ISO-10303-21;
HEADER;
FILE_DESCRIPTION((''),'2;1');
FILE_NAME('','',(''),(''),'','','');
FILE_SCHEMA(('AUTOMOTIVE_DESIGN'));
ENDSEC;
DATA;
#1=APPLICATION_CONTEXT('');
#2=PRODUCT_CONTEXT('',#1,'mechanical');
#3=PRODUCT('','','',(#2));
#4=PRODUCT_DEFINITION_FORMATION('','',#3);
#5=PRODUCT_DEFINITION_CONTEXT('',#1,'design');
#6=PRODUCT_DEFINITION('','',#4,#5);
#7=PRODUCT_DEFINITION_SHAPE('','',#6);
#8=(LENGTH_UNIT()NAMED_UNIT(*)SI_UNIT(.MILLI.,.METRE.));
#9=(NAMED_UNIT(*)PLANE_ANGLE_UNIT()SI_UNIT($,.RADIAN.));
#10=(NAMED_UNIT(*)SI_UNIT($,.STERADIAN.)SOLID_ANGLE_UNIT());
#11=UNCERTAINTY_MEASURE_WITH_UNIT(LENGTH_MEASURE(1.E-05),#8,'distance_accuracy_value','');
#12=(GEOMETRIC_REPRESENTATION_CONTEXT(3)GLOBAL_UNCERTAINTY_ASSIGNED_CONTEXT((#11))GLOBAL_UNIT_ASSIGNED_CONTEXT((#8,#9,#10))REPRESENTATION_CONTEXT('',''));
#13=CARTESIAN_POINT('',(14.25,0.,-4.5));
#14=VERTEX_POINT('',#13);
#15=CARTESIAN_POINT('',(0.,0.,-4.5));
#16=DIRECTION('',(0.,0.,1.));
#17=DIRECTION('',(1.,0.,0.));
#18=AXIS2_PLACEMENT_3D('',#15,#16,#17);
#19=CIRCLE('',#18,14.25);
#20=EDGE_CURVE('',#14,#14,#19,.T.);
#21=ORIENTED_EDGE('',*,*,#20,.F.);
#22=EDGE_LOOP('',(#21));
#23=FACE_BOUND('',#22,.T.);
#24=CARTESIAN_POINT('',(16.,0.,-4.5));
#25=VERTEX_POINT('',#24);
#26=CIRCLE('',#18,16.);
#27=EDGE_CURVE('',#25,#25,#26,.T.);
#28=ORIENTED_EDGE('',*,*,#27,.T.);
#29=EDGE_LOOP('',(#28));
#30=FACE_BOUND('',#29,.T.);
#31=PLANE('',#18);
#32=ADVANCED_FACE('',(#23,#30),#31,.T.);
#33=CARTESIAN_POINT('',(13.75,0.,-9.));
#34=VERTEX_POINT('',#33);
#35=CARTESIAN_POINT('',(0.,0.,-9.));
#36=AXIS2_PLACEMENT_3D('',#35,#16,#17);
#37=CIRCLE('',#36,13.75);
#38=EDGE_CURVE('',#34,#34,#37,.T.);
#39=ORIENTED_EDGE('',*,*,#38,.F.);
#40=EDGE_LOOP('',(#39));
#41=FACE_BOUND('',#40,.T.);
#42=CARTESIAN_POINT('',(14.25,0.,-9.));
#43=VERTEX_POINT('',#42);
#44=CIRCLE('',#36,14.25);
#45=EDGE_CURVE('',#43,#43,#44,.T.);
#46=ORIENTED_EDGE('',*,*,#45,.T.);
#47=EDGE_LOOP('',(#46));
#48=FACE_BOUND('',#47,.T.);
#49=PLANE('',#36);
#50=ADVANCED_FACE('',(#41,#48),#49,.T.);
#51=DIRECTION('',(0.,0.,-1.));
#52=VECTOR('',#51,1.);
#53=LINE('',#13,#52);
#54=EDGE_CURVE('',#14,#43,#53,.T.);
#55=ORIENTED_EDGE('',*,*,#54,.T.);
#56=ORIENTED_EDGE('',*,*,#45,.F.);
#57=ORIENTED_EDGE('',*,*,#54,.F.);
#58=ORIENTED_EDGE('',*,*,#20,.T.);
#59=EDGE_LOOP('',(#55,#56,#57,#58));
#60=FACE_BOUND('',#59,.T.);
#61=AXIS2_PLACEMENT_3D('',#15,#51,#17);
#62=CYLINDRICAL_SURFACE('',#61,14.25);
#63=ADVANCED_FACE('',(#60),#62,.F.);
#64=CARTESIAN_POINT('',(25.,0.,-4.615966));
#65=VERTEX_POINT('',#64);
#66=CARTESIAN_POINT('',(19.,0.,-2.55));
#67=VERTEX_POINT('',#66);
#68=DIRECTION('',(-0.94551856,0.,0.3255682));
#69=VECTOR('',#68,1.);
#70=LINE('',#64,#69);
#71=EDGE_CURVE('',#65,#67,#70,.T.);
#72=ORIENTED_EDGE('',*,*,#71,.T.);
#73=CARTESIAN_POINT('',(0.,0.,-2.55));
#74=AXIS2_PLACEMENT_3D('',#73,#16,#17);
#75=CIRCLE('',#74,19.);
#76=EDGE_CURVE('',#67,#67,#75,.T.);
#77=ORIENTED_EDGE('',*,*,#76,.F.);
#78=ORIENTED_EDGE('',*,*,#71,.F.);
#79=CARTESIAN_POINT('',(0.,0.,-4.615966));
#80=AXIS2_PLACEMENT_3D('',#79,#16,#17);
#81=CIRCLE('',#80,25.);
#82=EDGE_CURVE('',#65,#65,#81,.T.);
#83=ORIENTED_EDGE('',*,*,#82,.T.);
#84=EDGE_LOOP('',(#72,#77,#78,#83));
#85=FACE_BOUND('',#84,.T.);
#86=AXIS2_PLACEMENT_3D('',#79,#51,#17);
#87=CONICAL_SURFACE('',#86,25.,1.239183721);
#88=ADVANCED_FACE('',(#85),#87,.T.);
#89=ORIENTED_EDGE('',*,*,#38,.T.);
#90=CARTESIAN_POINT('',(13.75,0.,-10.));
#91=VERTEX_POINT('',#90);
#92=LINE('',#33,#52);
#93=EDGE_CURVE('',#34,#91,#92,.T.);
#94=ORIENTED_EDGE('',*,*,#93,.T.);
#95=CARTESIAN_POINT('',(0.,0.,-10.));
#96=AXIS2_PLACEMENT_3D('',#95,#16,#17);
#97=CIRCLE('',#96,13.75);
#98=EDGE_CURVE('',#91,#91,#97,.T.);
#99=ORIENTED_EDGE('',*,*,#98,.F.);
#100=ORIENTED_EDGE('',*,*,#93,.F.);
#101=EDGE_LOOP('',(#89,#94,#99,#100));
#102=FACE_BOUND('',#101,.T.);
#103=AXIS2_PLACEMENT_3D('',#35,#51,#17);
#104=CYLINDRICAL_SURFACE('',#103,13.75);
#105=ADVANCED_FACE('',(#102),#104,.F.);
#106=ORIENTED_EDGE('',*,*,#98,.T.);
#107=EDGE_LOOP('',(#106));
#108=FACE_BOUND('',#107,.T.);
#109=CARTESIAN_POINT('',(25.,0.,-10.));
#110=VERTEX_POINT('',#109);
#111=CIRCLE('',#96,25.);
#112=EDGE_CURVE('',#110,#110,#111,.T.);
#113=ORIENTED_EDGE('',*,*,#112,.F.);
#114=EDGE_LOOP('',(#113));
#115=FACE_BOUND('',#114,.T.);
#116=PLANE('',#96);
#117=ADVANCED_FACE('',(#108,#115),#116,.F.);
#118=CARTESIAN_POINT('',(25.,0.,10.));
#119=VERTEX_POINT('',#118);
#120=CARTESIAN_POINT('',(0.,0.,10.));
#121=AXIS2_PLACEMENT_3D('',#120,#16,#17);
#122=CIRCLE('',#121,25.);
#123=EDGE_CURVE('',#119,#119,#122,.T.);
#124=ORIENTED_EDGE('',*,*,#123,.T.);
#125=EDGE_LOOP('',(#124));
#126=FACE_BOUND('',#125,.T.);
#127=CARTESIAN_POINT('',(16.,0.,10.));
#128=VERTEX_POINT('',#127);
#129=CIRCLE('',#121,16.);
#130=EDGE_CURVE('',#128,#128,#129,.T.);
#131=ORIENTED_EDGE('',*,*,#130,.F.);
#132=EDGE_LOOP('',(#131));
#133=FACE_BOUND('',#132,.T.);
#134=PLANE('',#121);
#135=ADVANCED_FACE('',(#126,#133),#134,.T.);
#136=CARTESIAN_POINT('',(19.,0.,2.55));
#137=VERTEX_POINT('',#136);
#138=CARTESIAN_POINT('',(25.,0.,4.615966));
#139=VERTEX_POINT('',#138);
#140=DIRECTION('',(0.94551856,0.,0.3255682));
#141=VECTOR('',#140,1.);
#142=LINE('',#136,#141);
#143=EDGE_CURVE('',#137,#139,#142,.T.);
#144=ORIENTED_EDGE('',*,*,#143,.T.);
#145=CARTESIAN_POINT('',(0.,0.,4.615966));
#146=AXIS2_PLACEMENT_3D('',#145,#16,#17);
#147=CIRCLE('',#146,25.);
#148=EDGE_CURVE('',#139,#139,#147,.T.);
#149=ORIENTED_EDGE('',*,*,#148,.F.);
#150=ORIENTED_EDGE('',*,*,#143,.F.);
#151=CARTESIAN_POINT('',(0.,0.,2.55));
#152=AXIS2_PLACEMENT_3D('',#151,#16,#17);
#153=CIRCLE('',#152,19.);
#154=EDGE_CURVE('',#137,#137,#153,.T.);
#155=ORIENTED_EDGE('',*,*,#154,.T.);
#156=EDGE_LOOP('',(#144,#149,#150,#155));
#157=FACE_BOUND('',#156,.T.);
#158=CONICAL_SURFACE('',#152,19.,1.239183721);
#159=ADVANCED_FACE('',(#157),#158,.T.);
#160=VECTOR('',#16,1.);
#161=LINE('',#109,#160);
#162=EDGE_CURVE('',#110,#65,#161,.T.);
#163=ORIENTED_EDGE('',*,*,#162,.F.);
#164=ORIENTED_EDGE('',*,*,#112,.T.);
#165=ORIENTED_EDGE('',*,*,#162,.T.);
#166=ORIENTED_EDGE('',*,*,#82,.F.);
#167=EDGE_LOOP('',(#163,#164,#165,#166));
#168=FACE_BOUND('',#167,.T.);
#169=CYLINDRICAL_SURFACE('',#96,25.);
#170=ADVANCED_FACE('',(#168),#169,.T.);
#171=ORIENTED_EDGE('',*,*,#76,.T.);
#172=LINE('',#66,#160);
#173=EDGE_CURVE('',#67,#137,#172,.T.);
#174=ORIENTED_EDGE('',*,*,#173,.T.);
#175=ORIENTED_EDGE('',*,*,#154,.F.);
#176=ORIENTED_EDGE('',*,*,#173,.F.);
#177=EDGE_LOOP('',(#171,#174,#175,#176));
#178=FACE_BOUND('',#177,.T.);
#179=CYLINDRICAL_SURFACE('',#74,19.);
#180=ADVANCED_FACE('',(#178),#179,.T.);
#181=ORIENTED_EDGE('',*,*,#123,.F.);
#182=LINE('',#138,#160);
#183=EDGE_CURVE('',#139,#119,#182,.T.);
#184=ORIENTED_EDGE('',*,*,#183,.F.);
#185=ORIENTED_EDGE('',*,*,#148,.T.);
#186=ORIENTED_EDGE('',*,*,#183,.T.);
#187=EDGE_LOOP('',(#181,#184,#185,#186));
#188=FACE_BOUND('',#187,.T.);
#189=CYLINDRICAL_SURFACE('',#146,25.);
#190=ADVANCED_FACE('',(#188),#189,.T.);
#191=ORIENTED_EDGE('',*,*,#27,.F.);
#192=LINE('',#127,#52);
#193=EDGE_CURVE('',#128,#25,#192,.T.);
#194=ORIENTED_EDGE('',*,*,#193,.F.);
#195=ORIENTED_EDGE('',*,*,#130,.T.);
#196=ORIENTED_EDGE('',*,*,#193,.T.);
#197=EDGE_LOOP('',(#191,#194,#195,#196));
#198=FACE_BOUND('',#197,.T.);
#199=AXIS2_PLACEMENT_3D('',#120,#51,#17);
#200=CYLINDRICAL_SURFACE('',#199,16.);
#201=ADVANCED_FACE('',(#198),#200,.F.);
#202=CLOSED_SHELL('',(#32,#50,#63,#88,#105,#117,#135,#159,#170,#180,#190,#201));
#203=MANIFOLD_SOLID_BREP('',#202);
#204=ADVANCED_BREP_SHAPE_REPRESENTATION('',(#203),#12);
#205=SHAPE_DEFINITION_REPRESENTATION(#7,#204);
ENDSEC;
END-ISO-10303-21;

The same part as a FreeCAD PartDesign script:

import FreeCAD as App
import Part
import Sketcher
from FreeCAD import Vector
Q = App.Units.Quantity

doc = App.newDocument("Part")
params = doc.addObject("Spreadsheet::Sheet", "Params")
for row, (alias, value) in enumerate([
    ("sketch1_width", "9 mm"),
    ("sketch1_height", "1 mm"),
    ("sketch1_width2", "0.5 mm"),
    ("sketch1_height2", "5.1 mm"),
    ("sketch1_height3", "14.5 mm"),
    ("revolution_angle", "360 deg"),
], start=1):
    params.set(f"A{row}", alias)
    params.set(f"B{row}", "=" + value)
    params.setAlias(f"B{row}", alias)

body = doc.addObject("PartDesign::Body", "Body")

sketch1 = body.newObject("Sketcher::SketchObject", "Sketch")
sketch1.AttachmentSupport = (doc.getObject("XZ_Plane"), [""])
sketch1.MapMode = "FlatFace"
sketch1.addGeometry(Part.LineSegment(Vector(13.8, -10, 0), Vector(25, -10, 0)), False)
sketch1.addGeometry(Part.LineSegment(Vector(25, -10, 0), Vector(25, -4.6, 0)), False)
sketch1.addGeometry(Part.LineSegment(Vector(25, -4.6, 0), Vector(19, -2.5, 0)), False)
sketch1.addGeometry(Part.LineSegment(Vector(19, -2.5, 0), Vector(19, 2.5, 0)), False)
sketch1.addGeometry(Part.LineSegment(Vector(19, 2.5, 0), Vector(25, 4.6, 0)), False)
sketch1.addGeometry(Part.LineSegment(Vector(25, 4.6, 0), Vector(25, 10, 0)), False)
sketch1.addGeometry(Part.LineSegment(Vector(25, 10, 0), Vector(16, 10, 0)), False)
sketch1.addGeometry(Part.LineSegment(Vector(16, 10, 0), Vector(16, -4.5, 0)), False)
sketch1.addGeometry(Part.LineSegment(Vector(16, -4.5, 0), Vector(14.2, -4.5, 0)), False)
sketch1.addGeometry(Part.LineSegment(Vector(14.2, -4.5, 0), Vector(14.2, -9, 0)), False)
sketch1.addGeometry(Part.LineSegment(Vector(14.2, -9, 0), Vector(13.8, -9, 0)), False)
sketch1.addGeometry(Part.LineSegment(Vector(13.8, -9, 0), Vector(13.8, -10, 0)), False)
sketch1.addConstraint(Sketcher.Constraint("Coincident", 0, 2, 1, 1))
sketch1.addConstraint(Sketcher.Constraint("Coincident", 1, 2, 2, 1))
sketch1.addConstraint(Sketcher.Constraint("Coincident", 2, 2, 3, 1))
sketch1.addConstraint(Sketcher.Constraint("Coincident", 3, 2, 4, 1))
sketch1.addConstraint(Sketcher.Constraint("Coincident", 4, 2, 5, 1))
sketch1.addConstraint(Sketcher.Constraint("Coincident", 5, 2, 6, 1))
sketch1.addConstraint(Sketcher.Constraint("Coincident", 6, 2, 7, 1))
sketch1.addConstraint(Sketcher.Constraint("Coincident", 7, 2, 8, 1))
sketch1.addConstraint(Sketcher.Constraint("Coincident", 8, 2, 9, 1))
sketch1.addConstraint(Sketcher.Constraint("Coincident", 9, 2, 10, 1))
sketch1.addConstraint(Sketcher.Constraint("Coincident", 10, 2, 11, 1))
sketch1.addConstraint(Sketcher.Constraint("Coincident", 11, 2, 0, 1))
sketch1.addConstraint(Sketcher.Constraint("Horizontal", 0))
sketch1.addConstraint(Sketcher.Constraint("Vertical", 1))
sketch1.addConstraint(Sketcher.Constraint("Vertical", 3))
sketch1.addConstraint(Sketcher.Constraint("Vertical", 5))
sketch1.addConstraint(Sketcher.Constraint("Horizontal", 6))
sketch1.addConstraint(Sketcher.Constraint("Vertical", 7))
sketch1.addConstraint(Sketcher.Constraint("Horizontal", 8))
sketch1.addConstraint(Sketcher.Constraint("Vertical", 9))
sketch1.addConstraint(Sketcher.Constraint("Horizontal", 10))
sketch1.addConstraint(Sketcher.Constraint("Vertical", 11))
sketch1.addConstraint(Sketcher.Constraint("Symmetric", 1, 2, 4, 2, -1))
sketch1.addConstraint(Sketcher.Constraint("Equal", 1, 5))
sketch1.addConstraint(Sketcher.Constraint("Equal", 2, 4))
sketch1.addConstraint(Sketcher.Constraint("DistanceX", 6, 2, 6, 1, Q("9 mm")))
sketch1.addConstraint(Sketcher.Constraint("DistanceY", 11, 2, 11, 1, Q("1 mm")))
sketch1.addConstraint(Sketcher.Constraint("Angle", 2, Q("160.999997 deg")))
sketch1.addConstraint(Sketcher.Constraint("DistanceX", 10, 2, 10, 1, Q("0.5 mm")))
sketch1.addConstraint(Sketcher.Constraint("DistanceY", 3, 1, 3, 2, Q("5.1 mm")))
sketch1.addConstraint(Sketcher.Constraint("DistanceY", 7, 2, 7, 1, Q("14.5 mm")))
sketch1.addConstraint(Sketcher.Constraint("DistanceY", 9, 2, 9, 1, Q("4.5 mm")))
sketch1.addConstraint(Sketcher.Constraint("DistanceX", -1, 1, 0, 2, Q("25 mm")))
sketch1.addConstraint(Sketcher.Constraint("DistanceX", -1, 1, 2, 2, Q("19 mm")))
sketch1.addConstraint(Sketcher.Constraint("DistanceX", 0, 1, 0, 2, Q("11.25 mm")))
sketch1.setExpression("Constraints[25]", "Params.sketch1_width")
sketch1.setExpression("Constraints[26]", "Params.sketch1_height")
sketch1.setExpression("Constraints[28]", "Params.sketch1_width2")
sketch1.setExpression("Constraints[29]", "Params.sketch1_height2")
sketch1.setExpression("Constraints[30]", "Params.sketch1_height3")
revolution = body.newObject("PartDesign::Revolution", "Revolution")
revolution.Profile = sketch1
revolution.ReferenceAxis = (sketch1, ["V_Axis"])
revolution.setExpression("Angle", "Params.revolution_angle")

doc.recompute()
